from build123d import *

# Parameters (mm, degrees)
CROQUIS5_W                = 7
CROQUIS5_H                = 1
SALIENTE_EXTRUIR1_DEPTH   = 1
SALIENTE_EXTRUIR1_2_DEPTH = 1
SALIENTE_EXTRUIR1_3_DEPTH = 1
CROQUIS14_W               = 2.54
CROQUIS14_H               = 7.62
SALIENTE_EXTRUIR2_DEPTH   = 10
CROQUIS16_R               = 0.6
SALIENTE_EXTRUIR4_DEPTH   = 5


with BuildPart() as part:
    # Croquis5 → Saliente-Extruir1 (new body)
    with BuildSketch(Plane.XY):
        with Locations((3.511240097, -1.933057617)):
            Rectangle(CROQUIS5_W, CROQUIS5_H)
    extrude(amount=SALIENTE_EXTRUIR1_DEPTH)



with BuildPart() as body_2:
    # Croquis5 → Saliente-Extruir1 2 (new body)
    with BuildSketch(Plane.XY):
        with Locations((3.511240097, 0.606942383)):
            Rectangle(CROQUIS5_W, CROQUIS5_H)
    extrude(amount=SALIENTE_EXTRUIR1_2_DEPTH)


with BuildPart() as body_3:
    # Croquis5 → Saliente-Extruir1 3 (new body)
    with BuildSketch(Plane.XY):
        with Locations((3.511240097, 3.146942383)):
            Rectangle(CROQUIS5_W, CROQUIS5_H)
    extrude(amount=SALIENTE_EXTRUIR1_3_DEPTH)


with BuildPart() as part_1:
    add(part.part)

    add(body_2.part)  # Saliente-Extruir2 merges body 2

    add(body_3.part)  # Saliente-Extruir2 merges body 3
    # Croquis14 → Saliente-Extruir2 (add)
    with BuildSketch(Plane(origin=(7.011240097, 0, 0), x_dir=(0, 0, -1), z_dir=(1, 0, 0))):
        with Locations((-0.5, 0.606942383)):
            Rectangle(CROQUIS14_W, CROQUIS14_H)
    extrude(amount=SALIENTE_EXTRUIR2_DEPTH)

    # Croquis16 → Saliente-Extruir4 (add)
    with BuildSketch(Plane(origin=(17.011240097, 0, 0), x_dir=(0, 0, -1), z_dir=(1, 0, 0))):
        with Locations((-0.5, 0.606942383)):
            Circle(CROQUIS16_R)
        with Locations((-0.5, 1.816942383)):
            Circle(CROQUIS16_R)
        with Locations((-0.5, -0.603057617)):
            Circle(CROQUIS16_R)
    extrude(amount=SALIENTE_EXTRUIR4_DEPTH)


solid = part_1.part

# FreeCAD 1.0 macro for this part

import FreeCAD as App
import Part
import Sketcher

V = App.Vector
Q = App.Units.Quantity

doc = App.newDocument("Part")
body = doc.addObject("PartDesign::Body", "Body")

# Sketch on XY plane
sketch1 = body.newObject("Sketcher::SketchObject", "Sketch")
sketch1.AttachmentSupport = (doc.getObject("XY_Plane"), [""])
sketch1.MapMode = "FlatFace"
sketch1.addGeometry([
    Part.LineSegment(V(0, -1.4, 0), V(0, -2.4, 0)),
    Part.LineSegment(V(0, -2.4, 0), V(7, -2.4, 0)),
    Part.LineSegment(V(7, -2.4, 0), V(7, -1.4, 0)),
    Part.LineSegment(V(7, -1.4, 0), V(0, -1.4, 0)),
], False)
sketch1.addConstraint([
    Sketcher.Constraint("Coincident", 0, 2, 1, 1),
    Sketcher.Constraint("Coincident", 1, 2, 2, 1),
    Sketcher.Constraint("Coincident", 2, 2, 3, 1),
    Sketcher.Constraint("Coincident", 3, 2, 0, 1),
    Sketcher.Constraint("Vertical", 0),
    Sketcher.Constraint("Horizontal", 1),
    Sketcher.Constraint("Vertical", 2),
    Sketcher.Constraint("Horizontal", 3),
    Sketcher.Constraint("DistanceX", 1, 1, 1, 2, Q("7 mm")),
    Sketcher.Constraint("DistanceY", 0, 2, 0, 1, Q("1 mm")),
    Sketcher.Constraint("DistanceX", -1, 1, 0, 2, Q("0.01124 mm")),
    Sketcher.Constraint("DistanceY", 0, 2, -1, 1, Q("2.433058 mm")),
])
pad1 = body.newObject("PartDesign::Pad", "Pad")
pad1.Profile = sketch1
pad1.Length = 1
body2 = doc.addObject("PartDesign::Body", "Body001")

# Sketch on XY plane
sketch2 = body2.newObject("Sketcher::SketchObject", "Sketch001")
sketch2.AttachmentSupport = (doc.getObject("XY_Plane001"), [""])
sketch2.MapMode = "FlatFace"
sketch2.addGeometry([
    Part.LineSegment(V(0, 1.1, 0), V(0, 0.1, 0)),
    Part.LineSegment(V(0, 0.1, 0), V(7, 0.1, 0)),
    Part.LineSegment(V(7, 0.1, 0), V(7, 1.1, 0)),
    Part.LineSegment(V(7, 1.1, 0), V(0, 1.1, 0)),
], False)
sketch2.addConstraint([
    Sketcher.Constraint("Coincident", 0, 2, 1, 1),
    Sketcher.Constraint("Coincident", 1, 2, 2, 1),
    Sketcher.Constraint("Coincident", 2, 2, 3, 1),
    Sketcher.Constraint("Coincident", 3, 2, 0, 1),
    Sketcher.Constraint("Vertical", 0),
    Sketcher.Constraint("Horizontal", 1),
    Sketcher.Constraint("Vertical", 2),
    Sketcher.Constraint("Horizontal", 3),
    Sketcher.Constraint("DistanceX", 1, 1, 1, 2, Q("7 mm")),
    Sketcher.Constraint("DistanceY", 0, 2, 0, 1, Q("1 mm")),
    Sketcher.Constraint("DistanceX", -1, 1, 0, 2, Q("0.01124 mm")),
    Sketcher.Constraint("DistanceY", -1, 1, 0, 2, Q("0.106942 mm")),
])
pad2 = body2.newObject("PartDesign::Pad", "Pad001")
pad2.Profile = sketch2
pad2.Length = 1
body3 = doc.addObject("PartDesign::Body", "Body002")

# Sketch on XY plane
sketch3 = body3.newObject("Sketcher::SketchObject", "Sketch002")
sketch3.AttachmentSupport = (doc.getObject("XY_Plane002"), [""])
sketch3.MapMode = "FlatFace"
sketch3.addGeometry([
    Part.LineSegment(V(0, 3.6, 0), V(0, 2.6, 0)),
    Part.LineSegment(V(0, 2.6, 0), V(7, 2.6, 0)),
    Part.LineSegment(V(7, 2.6, 0), V(7, 3.6, 0)),
    Part.LineSegment(V(7, 3.6, 0), V(0, 3.6, 0)),
], False)
sketch3.addConstraint([
    Sketcher.Constraint("Coincident", 0, 2, 1, 1),
    Sketcher.Constraint("Coincident", 1, 2, 2, 1),
    Sketcher.Constraint("Coincident", 2, 2, 3, 1),
    Sketcher.Constraint("Coincident", 3, 2, 0, 1),
    Sketcher.Constraint("Vertical", 0),
    Sketcher.Constraint("Horizontal", 1),
    Sketcher.Constraint("Vertical", 2),
    Sketcher.Constraint("Horizontal", 3),
    Sketcher.Constraint("DistanceX", 1, 1, 1, 2, Q("7 mm")),
    Sketcher.Constraint("DistanceY", 0, 2, 0, 1, Q("1 mm")),
    Sketcher.Constraint("DistanceX", -1, 1, 0, 2, Q("0.01124 mm")),
    Sketcher.Constraint("DistanceY", -1, 1, 0, 2, Q("2.646942 mm")),
])
pad3 = body3.newObject("PartDesign::Pad", "Pad002")
pad3.Profile = sketch3
pad3.Length = 1
body.AllowCompound = True
doc.recompute()

boolean = body.newObject("PartDesign::Boolean", "Boolean")
boolean.Type = "Fuse"
boolean.addObjects([body2])
doc.recompute()

boolean2 = body.newObject("PartDesign::Boolean", "Boolean001")
boolean2.Type = "Fuse"
boolean2.addObjects([body3])

# Sketch on YZ plane
sketch4 = body.newObject("Sketcher::SketchObject", "Sketch003")
sketch4.AttachmentSupport = (doc.getObject("YZ_Plane"), [""])
sketch4.MapMode = "FlatFace"
sketch4.AttachmentOffset = App.Placement(V(0, 0, 7.01124), App.Rotation())
sketch4.addGeometry([
    Part.LineSegment(V(4.4, 1.8, 0), V(-3.2, 1.8, 0)),
    Part.LineSegment(V(-3.2, 1.8, 0), V(-3.2, -0.8, 0)),
    Part.LineSegment(V(-3.2, -0.8, 0), V(4.4, -0.8, 0)),
    Part.LineSegment(V(4.4, -0.8, 0), V(4.4, 1.8, 0)),
], False)
sketch4.addConstraint([
    Sketcher.Constraint("Coincident", 0, 2, 1, 1),
    Sketcher.Constraint("Coincident", 1, 2, 2, 1),
    Sketcher.Constraint("Coincident", 2, 2, 3, 1),
    Sketcher.Constraint("Coincident", 3, 2, 0, 1),
    Sketcher.Constraint("Horizontal", 0),
    Sketcher.Constraint("Vertical", 1),
    Sketcher.Constraint("Horizontal", 2),
    Sketcher.Constraint("Vertical", 3),
    Sketcher.Constraint("DistanceX", 0, 2, 0, 1, Q("7.62 mm")),
    Sketcher.Constraint("DistanceY", 1, 2, 1, 1, Q("2.54 mm")),
    Sketcher.Constraint("DistanceY", -1, 1, 0, 2, Q("1.77 mm")),
    Sketcher.Constraint("DistanceX", 0, 2, -1, 1, Q("3.203058 mm")),
])
pad4 = body.newObject("PartDesign::Pad", "Pad003")
pad4.Profile = sketch4
pad4.Length = 10

# Sketch on YZ plane
sketch5 = body.newObject("Sketcher::SketchObject", "Sketch004")
sketch5.AttachmentSupport = (doc.getObject("YZ_Plane"), [""])
sketch5.MapMode = "FlatFace"
sketch5.AttachmentOffset = App.Placement(V(0, 0, 17.01124), App.Rotation())
sketch5.addGeometry([
    Part.Circle(V(0.6, 0.5, 0), V(0, 0, 1), 0.6),
    Part.Circle(V(1.8, 0.5, 0), V(0, 0, 1), 0.6),
    Part.Circle(V(-0.6, 0.5, 0), V(0, 0, 1), 0.6),
], False)
sketch5.addConstraint([
    Sketcher.Constraint("Equal", 0, 1),
    Sketcher.Constraint("Equal", 1, 2),
    Sketcher.Constraint("Horizontal", 0, 3, 1, 3),
    Sketcher.Constraint("Horizontal", 1, 3, 2, 3),
    Sketcher.Constraint("Diameter", 0, Q("1.2 mm")),
    Sketcher.Constraint("DistanceY", -1, 1, 0, 3, Q("0.5 mm")),
    Sketcher.Constraint("DistanceX", 0, 3, 1, 3, Q("1.21 mm")),
    Sketcher.Constraint("DistanceX", 2, 3, 0, 3, Q("1.21 mm")),
    Sketcher.Constraint("DistanceX", -1, 1, 0, 3, Q("0.606942 mm")),
])
pad5 = body.newObject("PartDesign::Pad", "Pad004")
pad5.Profile = sketch5
pad5.Length = 5

doc.recompute()
